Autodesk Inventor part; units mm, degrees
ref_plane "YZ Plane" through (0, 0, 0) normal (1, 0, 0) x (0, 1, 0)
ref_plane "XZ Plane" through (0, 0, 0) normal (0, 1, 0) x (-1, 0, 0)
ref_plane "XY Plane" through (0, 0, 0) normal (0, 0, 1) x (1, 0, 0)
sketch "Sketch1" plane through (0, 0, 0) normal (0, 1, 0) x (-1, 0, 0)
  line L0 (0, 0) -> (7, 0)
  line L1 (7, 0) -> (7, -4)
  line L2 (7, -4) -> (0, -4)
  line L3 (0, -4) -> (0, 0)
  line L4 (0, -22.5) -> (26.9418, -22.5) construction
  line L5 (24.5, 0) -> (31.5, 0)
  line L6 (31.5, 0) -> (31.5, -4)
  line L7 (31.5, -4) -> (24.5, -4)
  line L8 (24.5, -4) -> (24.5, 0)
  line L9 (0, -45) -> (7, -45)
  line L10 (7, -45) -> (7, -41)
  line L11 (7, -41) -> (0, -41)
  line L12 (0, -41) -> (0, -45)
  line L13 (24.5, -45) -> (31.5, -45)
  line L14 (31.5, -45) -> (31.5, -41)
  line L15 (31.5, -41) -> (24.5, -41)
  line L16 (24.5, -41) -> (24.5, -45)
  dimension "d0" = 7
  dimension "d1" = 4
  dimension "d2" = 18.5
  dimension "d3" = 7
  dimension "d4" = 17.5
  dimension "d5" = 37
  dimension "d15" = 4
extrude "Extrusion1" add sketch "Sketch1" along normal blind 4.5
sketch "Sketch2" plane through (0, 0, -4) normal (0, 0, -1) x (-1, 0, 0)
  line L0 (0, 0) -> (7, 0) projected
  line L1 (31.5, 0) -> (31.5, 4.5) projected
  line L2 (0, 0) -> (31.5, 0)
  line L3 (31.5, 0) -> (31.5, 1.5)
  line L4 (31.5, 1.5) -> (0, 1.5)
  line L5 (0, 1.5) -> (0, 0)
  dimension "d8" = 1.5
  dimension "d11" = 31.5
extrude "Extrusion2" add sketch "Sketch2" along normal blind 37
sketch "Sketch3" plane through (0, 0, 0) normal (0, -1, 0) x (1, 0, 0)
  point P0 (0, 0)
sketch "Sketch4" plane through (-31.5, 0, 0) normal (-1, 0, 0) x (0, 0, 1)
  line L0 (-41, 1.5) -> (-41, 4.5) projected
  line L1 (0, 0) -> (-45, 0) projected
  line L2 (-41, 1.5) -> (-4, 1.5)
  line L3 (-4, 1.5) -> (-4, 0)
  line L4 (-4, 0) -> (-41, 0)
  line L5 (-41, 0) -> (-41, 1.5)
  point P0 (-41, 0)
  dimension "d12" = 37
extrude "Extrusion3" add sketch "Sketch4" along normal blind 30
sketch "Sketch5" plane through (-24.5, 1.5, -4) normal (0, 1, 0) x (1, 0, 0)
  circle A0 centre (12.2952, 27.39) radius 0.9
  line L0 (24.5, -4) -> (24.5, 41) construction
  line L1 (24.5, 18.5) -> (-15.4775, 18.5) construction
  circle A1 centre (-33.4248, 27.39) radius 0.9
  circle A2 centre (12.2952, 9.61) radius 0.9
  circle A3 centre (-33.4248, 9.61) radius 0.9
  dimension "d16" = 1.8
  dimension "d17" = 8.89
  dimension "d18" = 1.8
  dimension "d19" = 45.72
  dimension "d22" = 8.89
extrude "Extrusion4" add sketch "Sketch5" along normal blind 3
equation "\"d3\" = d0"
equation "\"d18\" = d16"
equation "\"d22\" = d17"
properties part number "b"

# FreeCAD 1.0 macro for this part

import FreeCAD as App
import Part
import Sketcher

doc = App.newDocument("Part")
body = doc.addObject("PartDesign::Body", "Body")
body.AllowCompound = True

sketch1 = doc.addObject("Sketcher::SketchObject", "Sketch")
body.addObject(sketch1)
sketch1.AttachmentSupport = (doc.XZ_Plane, [""])
sketch1.MapMode = "FlatFace"
sketch1.addGeometry([
    Part.LineSegment(App.Vector(-7, 0, 0), App.Vector(0, 0, 0)),
    Part.LineSegment(App.Vector(0, 0, 0), App.Vector(0, -4, 0)),
    Part.LineSegment(App.Vector(0, -4, 0), App.Vector(-7, -4, 0)),
    Part.LineSegment(App.Vector(-7, -4, 0), App.Vector(-7, 0, 0)),
    Part.LineSegment(App.Vector(-31.5, 0, 0), App.Vector(-24.5, 0, 0)),
    Part.LineSegment(App.Vector(-24.5, 0, 0), App.Vector(-24.5, -4, 0)),
    Part.LineSegment(App.Vector(-24.5, -4, 0), App.Vector(-31.5, -4, 0)),
    Part.LineSegment(App.Vector(-31.5, -4, 0), App.Vector(-31.5, 0, 0)),
    Part.LineSegment(App.Vector(0, -41, 0), App.Vector(0, -45, 0)),
    Part.LineSegment(App.Vector(0, -45, 0), App.Vector(-7, -45, 0)),
    Part.LineSegment(App.Vector(-7, -45, 0), App.Vector(-7, -41, 0)),
    Part.LineSegment(App.Vector(-7, -41, 0), App.Vector(0, -41, 0)),
    Part.LineSegment(App.Vector(-24.5, -41, 0), App.Vector(-24.5, -45, 0)),
    Part.LineSegment(App.Vector(-24.5, -45, 0), App.Vector(-31.5, -45, 0)),
    Part.LineSegment(App.Vector(-31.5, -45, 0), App.Vector(-31.5, -41, 0)),
    Part.LineSegment(App.Vector(-31.5, -41, 0), App.Vector(-24.5, -41, 0)),
], False)
sketch1.addConstraint([
    Sketcher.Constraint("Coincident", 0, 2, 1, 1),
    Sketcher.Constraint("Coincident", 1, 2, 2, 1),
    Sketcher.Constraint("Coincident", 2, 2, 3, 1),
    Sketcher.Constraint("Coincident", 3, 2, 0, 1),
    Sketcher.Constraint("Coincident", 4, 2, 5, 1),
    Sketcher.Constraint("Coincident", 5, 2, 6, 1),
    Sketcher.Constraint("Coincident", 6, 2, 7, 1),
    Sketcher.Constraint("Coincident", 7, 2, 4, 1),
    Sketcher.Constraint("Coincident", 8, 2, 9, 1),
    Sketcher.Constraint("Coincident", 9, 2, 10, 1),
    Sketcher.Constraint("Coincident", 10, 2, 11, 1),
    Sketcher.Constraint("Coincident", 11, 2, 8, 1),
    Sketcher.Constraint("Coincident", 12, 2, 13, 1),
    Sketcher.Constraint("Coincident", 13, 2, 14, 1),
    Sketcher.Constraint("Coincident", 14, 2, 15, 1),
    Sketcher.Constraint("Coincident", 15, 2, 12, 1),
    Sketcher.Constraint("Horizontal", 0),
    Sketcher.Constraint("Vertical", 1),
    Sketcher.Constraint("Horizontal", 2),
    Sketcher.Constraint("Vertical", 3),
    Sketcher.Constraint("Horizontal", 4),
    Sketcher.Constraint("Vertical", 5),
    Sketcher.Constraint("Horizontal", 6),
    Sketcher.Constraint("Vertical", 7),
    Sketcher.Constraint("Vertical", 8),
    Sketcher.Constraint("Horizontal", 9),
    Sketcher.Constraint("Vertical", 10),
    Sketcher.Constraint("Horizontal", 11),
    Sketcher.Constraint("Vertical", 12),
    Sketcher.Constraint("Horizontal", 13),
    Sketcher.Constraint("Vertical", 14),
    Sketcher.Constraint("Horizontal", 15),
    Sketcher.Constraint("Coincident", 0, 2, -1, 1),
    Sketcher.Constraint("PointOnObject", 4, 2, -1),
    Sketcher.Constraint("PointOnObject", 8, 2, -2),
    Sketcher.Constraint("Horizontal", 2, 2, 5, 2),
    Sketcher.Constraint("Horizontal", 9, 2, 12, 2),
    Sketcher.Constraint("Horizontal", 11, 2, 14, 2),
    Sketcher.Constraint("Vertical", 3, 2, 9, 2),
    Sketcher.Constraint("Vertical", 5, 2, 12, 2),
    Sketcher.Constraint("Vertical", 7, 2, 13, 2),
    Sketcher.Constraint("Equal", 2, 4),
    Sketcher.Constraint("Equal", 7, 8),
    Sketcher.Constraint("DistanceX", 0, 1, 0, 2, 7.0),
    Sketcher.Constraint("DistanceY", 1, 2, 1, 1, 4.0),
    Sketcher.Constraint("DistanceY", 10, 2, 2, 2, 37.0),
    Sketcher.Constraint("DistanceX", 4, 2, 3, 2, 17.5),
])
pad1 = doc.addObject("PartDesign::Pad", "Pad")
body.addObject(pad1)
pad1.Profile = sketch1
pad1.Length = 4.5
pad1.Reversed = True

sketch2 = doc.addObject("Sketcher::SketchObject", "Sketch001")
body.addObject(sketch2)
sketch2.AttachmentSupport = (doc.XY_Plane, [""])
sketch2.MapMode = "FlatFace"
sketch2.AttachmentOffset = App.Placement(App.Vector(0, 0, -4), App.Rotation())
sketch2.addGeometry([
    Part.LineSegment(App.Vector(0, 1.5, 0), App.Vector(0, 0, 0)),
    Part.LineSegment(App.Vector(0, 0, 0), App.Vector(-31.5, 0, 0)),
    Part.LineSegment(App.Vector(-31.5, 0, 0), App.Vector(-31.5, 1.5, 0)),
    Part.LineSegment(App.Vector(-31.5, 1.5, 0), App.Vector(0, 1.5, 0)),
], False)
sketch2.addConstraint([
    Sketcher.Constraint("Coincident", 0, 2, 1, 1),
    Sketcher.Constraint("Coincident", 1, 2, 2, 1),
    Sketcher.Constraint("Coincident", 2, 2, 3, 1),
    Sketcher.Constraint("Coincident", 3, 2, 0, 1),
    Sketcher.Constraint("Vertical", 0),
    Sketcher.Constraint("Horizontal", 1),
    Sketcher.Constraint("Vertical", 2),
    Sketcher.Constraint("Horizontal", 3),
    Sketcher.Constraint("Coincident", 0, 2, -1, 1),
    Sketcher.Constraint("DistanceX", 1, 2, 1, 1, 31.5),
    Sketcher.Constraint("DistanceY", 0, 2, 0, 1, 1.5),
])
pad2 = doc.addObject("PartDesign::Pad", "Pad001")
body.addObject(pad2)
pad2.Profile = sketch2
pad2.Length = 37
pad2.Reversed = True

sketch3 = doc.addObject("Sketcher::SketchObject", "Sketch002")
body.addObject(sketch3)
sketch3.AttachmentSupport = (doc.YZ_Plane, [""])
sketch3.MapMode = "FlatFace"
sketch3.AttachmentOffset = App.Placement(App.Vector(0, 0, -31.5), App.Rotation())
sketch3.addGeometry([
    Part.LineSegment(App.Vector(0, -41, 0), App.Vector(0, -4, 0)),
    Part.LineSegment(App.Vector(0, -4, 0), App.Vector(1.5, -4, 0)),
    Part.LineSegment(App.Vector(1.5, -4, 0), App.Vector(1.5, -41, 0)),
    Part.LineSegment(App.Vector(1.5, -41, 0), App.Vector(0, -41, 0)),
], False)
sketch3.addConstraint([
    Sketcher.Constraint("Coincident", 0, 2, 1, 1),
    Sketcher.Constraint("Coincident", 1, 2, 2, 1),
    Sketcher.Constraint("Coincident", 2, 2, 3, 1),
    Sketcher.Constraint("Coincident", 3, 2, 0, 1),
    Sketcher.Constraint("Vertical", 0),
    Sketcher.Constraint("Horizontal", 1),
    Sketcher.Constraint("Vertical", 2),
    Sketcher.Constraint("Horizontal", 3),
    Sketcher.Constraint("PointOnObject", 0, 2, -2),
    Sketcher.Constraint("DistanceY", 0, 1, 0, 2, 37.0),
    Sketcher.Constraint("DistanceX", 1, 1, 1, 2, 1.5),
    Sketcher.Constraint("DistanceY", 0, 2, -1, 1, 4.0),
])
pad3 = doc.addObject("PartDesign::Pad", "Pad002")
body.addObject(pad3)
pad3.Profile = sketch3
pad3.Length = 30
pad3.Reversed = True

sketch4 = doc.addObject("Sketcher::SketchObject", "Sketch003")
body.addObject(sketch4)
sketch4.AttachmentSupport = (doc.XZ_Plane, [""])
sketch4.MapMode = "FlatFace"
sketch4.AttachmentOffset = App.Placement(App.Vector(0, 0, -1.5), App.Rotation())
sketch4.addGeometry([
    Part.Circle(App.Vector(-12.2, -31.4, 0), App.Vector(0, 0, 1), 0.9),
    Part.Circle(App.Vector(-57.9, -31.4, 0), App.Vector(0, 0, 1), 0.9),
    Part.Circle(App.Vector(-12.2, -13.6, 0), App.Vector(0, 0, 1), 0.9),
    Part.Circle(App.Vector(-57.9, -13.6, 0), App.Vector(0, 0, 1), 0.9),
], False)
sketch4.addConstraint([
    Sketcher.Constraint("Equal", 0, 1),
    Sketcher.Constraint("Equal", 1, 2),
    Sketcher.Constraint("Equal", 2, 3),
    Sketcher.Constraint("Horizontal", 0, 3, 1, 3),
    Sketcher.Constraint("Horizontal", 2, 3, 3, 3),
    Sketcher.Constraint("Vertical", 0, 3, 2, 3),
    Sketcher.Constraint("Vertical", 1, 3, 3, 3),
    Sketcher.Constraint("Diameter", 0, 1.8),
    Sketcher.Constraint("DistanceX", 1, 3, 0, 3, 45.72),
    Sketcher.Constraint("DistanceY", 0, 3, -1, 1, 31.39),
    Sketcher.Constraint("DistanceY", 2, 3, -1, 1, 13.61),
    Sketcher.Constraint("DistanceX", 0, 3, -1, 1, 12.2048),
])
pad4 = doc.addObject("PartDesign::Pad", "Pad003")
body.addObject(pad4)
pad4.Profile = sketch4
pad4.Length = 3
pad4.Reversed = True

doc.recompute()
